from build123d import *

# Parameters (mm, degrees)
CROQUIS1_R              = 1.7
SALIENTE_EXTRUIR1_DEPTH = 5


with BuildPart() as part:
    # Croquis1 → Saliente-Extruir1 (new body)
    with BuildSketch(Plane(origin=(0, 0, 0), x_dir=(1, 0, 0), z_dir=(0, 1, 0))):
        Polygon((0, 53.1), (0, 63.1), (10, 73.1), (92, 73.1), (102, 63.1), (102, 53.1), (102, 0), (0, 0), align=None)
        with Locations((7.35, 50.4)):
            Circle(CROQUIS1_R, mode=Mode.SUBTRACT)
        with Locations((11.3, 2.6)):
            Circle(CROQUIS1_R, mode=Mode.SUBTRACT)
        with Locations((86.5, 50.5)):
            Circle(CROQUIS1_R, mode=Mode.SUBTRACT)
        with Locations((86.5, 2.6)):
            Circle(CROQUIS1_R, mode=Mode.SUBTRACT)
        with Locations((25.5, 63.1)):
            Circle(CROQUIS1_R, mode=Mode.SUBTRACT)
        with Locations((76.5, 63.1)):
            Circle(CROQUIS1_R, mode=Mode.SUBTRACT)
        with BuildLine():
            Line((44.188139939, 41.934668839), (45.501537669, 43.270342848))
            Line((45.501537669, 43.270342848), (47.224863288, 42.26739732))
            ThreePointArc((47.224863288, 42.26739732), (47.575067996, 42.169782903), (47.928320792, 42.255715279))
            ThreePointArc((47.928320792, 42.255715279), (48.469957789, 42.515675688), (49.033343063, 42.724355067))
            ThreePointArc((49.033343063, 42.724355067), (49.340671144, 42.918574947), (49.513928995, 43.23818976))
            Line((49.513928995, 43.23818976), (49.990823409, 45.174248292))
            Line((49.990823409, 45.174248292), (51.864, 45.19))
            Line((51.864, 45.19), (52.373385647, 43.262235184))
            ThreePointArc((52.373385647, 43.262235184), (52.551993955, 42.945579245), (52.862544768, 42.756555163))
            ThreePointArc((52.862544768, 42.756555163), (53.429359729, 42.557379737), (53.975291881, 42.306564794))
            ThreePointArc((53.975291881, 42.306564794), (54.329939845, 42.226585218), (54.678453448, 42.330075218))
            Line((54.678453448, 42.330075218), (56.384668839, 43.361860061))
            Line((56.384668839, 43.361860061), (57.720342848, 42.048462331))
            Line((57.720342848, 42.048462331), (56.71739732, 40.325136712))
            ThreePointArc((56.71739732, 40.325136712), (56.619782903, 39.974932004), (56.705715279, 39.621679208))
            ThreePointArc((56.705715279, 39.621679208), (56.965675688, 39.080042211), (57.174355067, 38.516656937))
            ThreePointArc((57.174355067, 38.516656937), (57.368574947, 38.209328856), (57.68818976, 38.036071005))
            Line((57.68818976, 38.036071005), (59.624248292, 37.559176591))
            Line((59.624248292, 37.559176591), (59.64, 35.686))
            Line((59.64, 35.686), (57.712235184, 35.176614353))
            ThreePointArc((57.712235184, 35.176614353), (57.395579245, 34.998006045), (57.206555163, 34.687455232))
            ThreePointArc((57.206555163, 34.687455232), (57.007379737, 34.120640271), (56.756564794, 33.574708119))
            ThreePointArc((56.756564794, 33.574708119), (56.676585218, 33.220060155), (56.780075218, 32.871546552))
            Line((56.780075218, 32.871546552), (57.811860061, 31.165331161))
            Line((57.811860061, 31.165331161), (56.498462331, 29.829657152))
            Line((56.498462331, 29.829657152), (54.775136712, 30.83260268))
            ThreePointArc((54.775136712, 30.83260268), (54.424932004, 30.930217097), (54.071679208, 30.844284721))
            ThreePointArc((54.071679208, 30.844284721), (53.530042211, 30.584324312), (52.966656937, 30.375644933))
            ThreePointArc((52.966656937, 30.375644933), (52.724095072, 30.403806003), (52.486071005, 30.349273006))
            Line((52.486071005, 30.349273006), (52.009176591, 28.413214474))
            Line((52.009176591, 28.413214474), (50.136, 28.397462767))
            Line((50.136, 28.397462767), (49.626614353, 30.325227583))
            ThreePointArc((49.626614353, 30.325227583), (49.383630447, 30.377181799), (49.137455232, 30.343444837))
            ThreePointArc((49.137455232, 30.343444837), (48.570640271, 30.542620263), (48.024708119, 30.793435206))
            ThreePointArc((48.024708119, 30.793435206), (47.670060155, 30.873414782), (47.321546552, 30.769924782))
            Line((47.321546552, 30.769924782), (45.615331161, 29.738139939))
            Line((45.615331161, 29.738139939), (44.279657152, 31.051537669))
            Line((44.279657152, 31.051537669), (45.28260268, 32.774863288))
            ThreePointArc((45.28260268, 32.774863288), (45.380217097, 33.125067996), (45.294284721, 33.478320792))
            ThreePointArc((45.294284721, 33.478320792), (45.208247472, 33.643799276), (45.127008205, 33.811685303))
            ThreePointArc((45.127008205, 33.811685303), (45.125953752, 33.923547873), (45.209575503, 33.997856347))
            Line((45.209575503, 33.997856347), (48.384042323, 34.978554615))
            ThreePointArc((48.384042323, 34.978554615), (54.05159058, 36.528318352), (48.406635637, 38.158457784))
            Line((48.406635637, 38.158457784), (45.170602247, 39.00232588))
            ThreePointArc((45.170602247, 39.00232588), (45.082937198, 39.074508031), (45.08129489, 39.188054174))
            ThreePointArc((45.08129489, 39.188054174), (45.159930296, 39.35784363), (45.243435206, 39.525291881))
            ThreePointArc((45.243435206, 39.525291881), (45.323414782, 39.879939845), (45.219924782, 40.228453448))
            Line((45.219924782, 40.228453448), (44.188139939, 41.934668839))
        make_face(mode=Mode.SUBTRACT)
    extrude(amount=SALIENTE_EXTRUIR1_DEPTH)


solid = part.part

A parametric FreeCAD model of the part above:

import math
import FreeCAD as App
import Part
import Sketcher
from FreeCAD import Vector

doc = App.newDocument("Part")
body = doc.addObject("PartDesign::Body", "Body")

# Sketch on XZ plane
sketch1 = doc.addObject("Sketcher::SketchObject", "Sketch")
body.addObject(sketch1)
sketch1.AttachmentSupport = (doc.XZ_Plane, [""])
sketch1.MapMode = "FlatFace"
sketch1.addGeometry([
    Part.LineSegment(Vector(0, -63.1, 0), Vector(0, 0, 0)),  # 0
    Part.LineSegment(Vector(0, 0, 0), Vector(102, 0, 0)),  # 1
    Part.LineSegment(Vector(102, 0, 0), Vector(102, -63.1, 0)),  # 2
    Part.LineSegment(Vector(102, -63.1, 0), Vector(92, -73.1, 0)),  # 3
    Part.LineSegment(Vector(92, -73.1, 0), Vector(10, -73.1, 0)),  # 4
    Part.LineSegment(Vector(10, -73.1, 0), Vector(0, -63.1, 0)),  # 5
    Part.Circle(Vector(86.5, -2.6, 0), Vector(0, 0, 1), 1.7),  # 6
    Part.Circle(Vector(11.3, -2.6, 0), Vector(0, 0, 1), 1.7),  # 7
    Part.LineSegment(Vector(44.18814, -41.934669, 0), Vector(45.501538, -43.270343, 0)),  # 8
    Part.LineSegment(Vector(45.501538, -43.270343, 0), Vector(47.224863, -42.267397, 0)),  # 9
    Part.ArcOfCircle(Part.Circle(Vector(47.587023, -42.889684, 0), Vector(0, 0, 1), 0.72), math.radians(61.704141), math.radians(120.198661)),  # 10
    Part.ArcOfCircle(Part.Circle(Vector(51, -36.55, 0), Vector(0, 0, 1), 6.48), math.radians(-118.295859), math.radians(-107.667729)),  # 11
    Part.ArcOfCircle(Part.Circle(Vector(48.814826, -43.410395, 0), Vector(0, 0, 1), 0.72), math.radians(13.837752), math.radians(72.332271)),  # 12
    Part.LineSegment(Vector(49.513929, -43.23819, 0), Vector(49.990823, -45.174248, 0)),  # 13
    Part.LineSegment(Vector(49.990823, -45.174248, 0), Vector(51.864, -45.19, 0)),  # 14
    Part.LineSegment(Vector(51.864, -45.19, 0), Vector(52.373386, -43.262235, 0)),  # 15
    Part.ArcOfCircle(Part.Circle(Vector(53.069494, -43.446172, 0), Vector(0, 0, 1), 0.72), math.radians(106.704141), math.radians(165.198661)),  # 16
    Part.ArcOfCircle(Part.Circle(Vector(51, -36.55, 0), Vector(0, 0, 1), 6.48), math.radians(-73.295859), math.radians(-62.667729)),  # 17
    Part.ArcOfCircle(Part.Circle(Vector(54.30588, -42.946183, 0), Vector(0, 0, 1), 0.72), math.radians(58.837752), math.radians(117.332271)),  # 18
    Part.LineSegment(Vector(54.678453, -42.330075, 0), Vector(56.384669, -43.36186, 0)),  # 19
    Part.LineSegment(Vector(56.384669, -43.36186, 0), Vector(57.720343, -42.048462, 0)),  # 20
    Part.LineSegment(Vector(57.720343, -42.048462, 0), Vector(56.717397, -40.325137, 0)),  # 21
    Part.ArcOfCircle(Part.Circle(Vector(57.339684, -39.962977, 0), Vector(0, 0, 1), 0.72), math.radians(151.704141), math.radians(210.198661)),  # 22
    Part.ArcOfCircle(Part.Circle(Vector(51, -36.55, 0), Vector(0, 0, 1), 6.48), math.radians(-28.295859), math.radians(-17.667729)),  # 23
    Part.ArcOfCircle(Part.Circle(Vector(57.860395, -38.735174, 0), Vector(0, 0, 1), 0.72), math.radians(103.837752), math.radians(162.332271)),  # 24
    Part.LineSegment(Vector(57.68819, -38.036071, 0), Vector(59.624248, -37.559177, 0)),  # 25
    Part.LineSegment(Vector(59.624248, -37.559177, 0), Vector(59.64, -35.686, 0)),  # 26
    Part.LineSegment(Vector(59.64, -35.686, 0), Vector(57.712235, -35.176614, 0)),  # 27
    Part.ArcOfCircle(Part.Circle(Vector(57.896172, -34.480506, 0), Vector(0, 0, 1), 0.72), math.radians(-163.295859), math.radians(-104.801339)),  # 28
    Part.ArcOfCircle(Part.Circle(Vector(51, -36.55, 0), Vector(0, 0, 1), 6.48), math.radians(16.704141), math.radians(27.332271)),  # 29
    Part.ArcOfCircle(Part.Circle(Vector(57.396183, -33.24412, 0), Vector(0, 0, 1), 0.72), math.radians(148.837752), math.radians(207.332271)),  # 30
    Part.LineSegment(Vector(56.780075, -32.871547, 0), Vector(57.81186, -31.165331, 0)),  # 31
    Part.LineSegment(Vector(57.81186, -31.165331, 0), Vector(56.498462, -29.829657, 0)),  # 32
    Part.LineSegment(Vector(56.498462, -29.829657, 0), Vector(54.775137, -30.832603, 0)),  # 33
    Part.ArcOfCircle(Part.Circle(Vector(54.412977, -30.210316, 0), Vector(0, 0, 1), 0.72), math.radians(-118.295859), math.radians(-59.801339)),  # 34
    Part.ArcOfCircle(Part.Circle(Vector(51, -36.55, 0), Vector(0, 0, 1), 6.48), math.radians(61.704141), math.radians(72.332271)),  # 35
    Part.ArcOfCircle(Part.Circle(Vector(52.763545, -29.684888, 0), Vector(0, 0, 1), 0.72), math.radians(-112.6674), math.radians(-73.614457)),  # 36
    Part.LineSegment(Vector(52.486071, -30.349273, 0), Vector(52.009177, -28.413214, 0)),  # 37
    Part.LineSegment(Vector(52.009177, -28.413214, 0), Vector(50.136, -28.397463, 0)),  # 38
    Part.LineSegment(Vector(50.136, -28.397463, 0), Vector(49.626614, -30.325228, 0)),  # 39
    Part.ArcOfCircle(Part.Circle(Vector(49.356835, -29.657681, 0), Vector(0, 0, 1), 0.72), math.radians(-107.739746), math.radians(-67.994609)),  # 40
    Part.ArcOfCircle(Part.Circle(Vector(51, -36.55, 0), Vector(0, 0, 1), 6.48), math.radians(106.704141), math.radians(117.332271)),  # 41
    Part.ArcOfCircle(Part.Circle(Vector(47.69412, -30.153817, 0), Vector(0, 0, 1), 0.72), math.radians(-121.162248), math.radians(-62.667729)),  # 42
    Part.LineSegment(Vector(47.321547, -30.769925, 0), Vector(45.615331, -29.73814, 0)),  # 43
    Part.LineSegment(Vector(45.615331, -29.73814, 0), Vector(44.279657, -31.051538, 0)),  # 44
    Part.LineSegment(Vector(44.279657, -31.051538, 0), Vector(45.282603, -32.774863, 0)),  # 45
    Part.ArcOfCircle(Part.Circle(Vector(44.660316, -33.137023, 0), Vector(0, 0, 1), 0.72), math.radians(-28.295859), math.radians(30.198661)),  # 46
    Part.ArcOfCircle(Part.Circle(Vector(51.000002, -36.550001, 0), Vector(0, 0, 1), 6.480002), math.radians(151.704142), math.radians(155.002455)),  # 47
    Part.ArcOfCircle(Part.Circle(Vector(45.249453, -33.868776, 0), Vector(0, 0, 1), 0.1351), math.radians(155.002455), math.radians(252.832344)),  # 48
    Part.LineSegment(Vector(45.209576, -33.997856, 0), Vector(48.384042, -34.978555, 0)),  # 49
    Part.ArcOfCircle(Part.Circle(Vector(51, -36.55, 0), Vector(0, 0, 1), 3.051668), math.radians(-148.191962), math.radians(149.006125)),  # 50
    Part.LineSegment(Vector(48.406636, -38.158458, 0), Vector(45.170602, -39.002326, 0)),  # 51
    Part.ArcOfCircle(Part.Circle(Vector(45.204693, -39.133054, 0), Vector(0, 0, 1), 0.1351), math.radians(104.61566), math.radians(204.023238)),  # 52
    Part.ArcOfCircle(Part.Circle(Vector(51.000001, -36.549999, 0), Vector(0, 0, 1), 6.480001), math.radians(-155.976762), math.radians(-152.667729)),  # 53
    Part.ArcOfCircle(Part.Circle(Vector(44.603817, -39.85588, 0), Vector(0, 0, 1), 0.72), math.radians(-31.162248), math.radians(27.332271)),  # 54
    Part.LineSegment(Vector(45.219925, -40.228453, 0), Vector(44.18814, -41.934669, 0)),  # 55
    Part.Circle(Vector(86.5, -50.5, 0), Vector(0, 0, 1), 1.7),  # 56
    Part.Circle(Vector(76.5, -63.1, 0), Vector(0, 0, 1), 1.7),  # 57
    Part.Circle(Vector(7.35, -50.4, 0), Vector(0, 0, 1), 1.7),  # 58
    Part.Circle(Vector(25.5, -63.1, 0), Vector(0, 0, 1), 1.7),  # 59
], False)
sketch1.addConstraint([
    Sketcher.Constraint("Coincident", 0, 2, 1, 1),
    Sketcher.Constraint("Coincident", 1, 2, 2, 1),
    Sketcher.Constraint("Coincident", 2, 2, 3, 1),
    Sketcher.Constraint("Coincident", 3, 2, 4, 1),
    Sketcher.Constraint("Coincident", 4, 2, 5, 1),
    Sketcher.Constraint("Coincident", 5, 2, 0, 1),
    Sketcher.Constraint("Coincident", 8, 2, 9, 1),
    Sketcher.Constraint("Tangent", 9, 2, 10, 2),
    Sketcher.Constraint("Tangent", 10, 1, 11, 1),
    Sketcher.Constraint("Tangent", 11, 2, 12, 2),
    Sketcher.Constraint("Tangent", 12, 1, 13, 1),
    Sketcher.Constraint("Coincident", 13, 2, 14, 1),
    Sketcher.Constraint("Coincident", 14, 2, 15, 1),
    Sketcher.Constraint("Tangent", 15, 2, 16, 2),
    Sketcher.Constraint("Tangent", 16, 1, 17, 1),
    Sketcher.Constraint("Tangent", 17, 2, 18, 2),
    Sketcher.Constraint("Tangent", 18, 1, 19, 1),
    Sketcher.Constraint("Coincident", 19, 2, 20, 1),
    Sketcher.Constraint("Coincident", 20, 2, 21, 1),
    Sketcher.Constraint("Tangent", 21, 2, 22, 2),
    Sketcher.Constraint("Tangent", 22, 1, 23, 1),
    Sketcher.Constraint("Tangent", 23, 2, 24, 2),
    Sketcher.Constraint("Tangent", 24, 1, 25, 1),
    Sketcher.Constraint("Coincident", 25, 2, 26, 1),
    Sketcher.Constraint("Coincident", 26, 2, 27, 1),
    Sketcher.Constraint("Tangent", 27, 2, 28, 2),
    Sketcher.Constraint("Tangent", 28, 1, 29, 1),
    Sketcher.Constraint("Tangent", 29, 2, 30, 2),
    Sketcher.Constraint("Tangent", 30, 1, 31, 1),
    Sketcher.Constraint("Coincident", 31, 2, 32, 1),
    Sketcher.Constraint("Coincident", 32, 2, 33, 1),
    Sketcher.Constraint("Tangent", 33, 2, 34, 2),
    Sketcher.Constraint("Tangent", 34, 1, 35, 1),
    Sketcher.Constraint("Coincident", 35, 2, 36, 2),
    Sketcher.Constraint("Coincident", 36, 1, 37, 1),
    Sketcher.Constraint("Coincident", 37, 2, 38, 1),
    Sketcher.Constraint("Coincident", 38, 2, 39, 1),
    Sketcher.Constraint("Coincident", 39, 2, 40, 2),
    Sketcher.Constraint("Coincident", 40, 1, 41, 1),
    Sketcher.Constraint("Tangent", 41, 2, 42, 2),
    Sketcher.Constraint("Tangent", 42, 1, 43, 1),
    Sketcher.Constraint("Coincident", 43, 2, 44, 1),
    Sketcher.Constraint("Coincident", 44, 2, 45, 1),
    Sketcher.Constraint("Tangent", 45, 2, 46, 2),
    Sketcher.Constraint("Tangent", 46, 1, 47, 1),
    Sketcher.Constraint("Tangent", 47, 2, 48, 1),
    Sketcher.Constraint("Tangent", 48, 2, 49, 1),
    Sketcher.Constraint("Coincident", 49, 2, 50, 2),
    Sketcher.Constraint("Coincident", 50, 1, 51, 1),
    Sketcher.Constraint("Tangent", 51, 2, 52, 1),
    Sketcher.Constraint("Tangent", 52, 2, 53, 1),
    Sketcher.Constraint("Tangent", 53, 2, 54, 2),
    Sketcher.Constraint("Tangent", 54, 1, 55, 1),
    Sketcher.Constraint("Coincident", 55, 2, 8, 1),
    Sketcher.Constraint("Vertical", 0),
    Sketcher.Constraint("Horizontal", 1),
    Sketcher.Constraint("Vertical", 2),
    Sketcher.Constraint("Horizontal", 4),
    Sketcher.Constraint("Coincident", 0, 2, -1, 1),
    Sketcher.Constraint("Coincident", 17, 3, 11, 3),
    Sketcher.Constraint("Coincident", 23, 3, 11, 3),
    Sketcher.Constraint("Coincident", 29, 3, 11, 3),
    Sketcher.Constraint("Coincident", 35, 3, 11, 3),
    Sketcher.Constraint("Coincident", 41, 3, 11, 3),
    Sketcher.Constraint("Coincident", 47, 3, 11, 3),
    Sketcher.Constraint("Coincident", 50, 3, 11, 3),
    Sketcher.Constraint("Coincident", 53, 3, 11, 3),
    Sketcher.Constraint("Equal", 6, 7),
    Sketcher.Constraint("Equal", 10, 12),
    Sketcher.Constraint("Equal", 12, 16),
    Sketcher.Constraint("Equal", 11, 17),
    Sketcher.Constraint("Equal", 16, 18),
    Sketcher.Constraint("Equal", 18, 22),
    Sketcher.Constraint("Equal", 17, 23),
    Sketcher.Constraint("Equal", 22, 24),
    Sketcher.Constraint("Equal", 24, 28),
    Sketcher.Constraint("Equal", 23, 29),
    Sketcher.Constraint("Equal", 28, 30),
    Sketcher.Constraint("Equal", 30, 34),
    Sketcher.Constraint("Equal", 29, 35),
    Sketcher.Constraint("Equal", 34, 36),
    Sketcher.Constraint("Equal", 36, 40),
    Sketcher.Constraint("Equal", 35, 41),
    Sketcher.Constraint("Equal", 40, 42),
    Sketcher.Constraint("Equal", 42, 46),
    Sketcher.Constraint("Equal", 41, 47),
    Sketcher.Constraint("Equal", 48, 52),
    Sketcher.Constraint("Equal", 47, 53),
    Sketcher.Constraint("Equal", 46, 54),
    Sketcher.Constraint("Equal", 7, 56),
    Sketcher.Constraint("Equal", 56, 57),
    Sketcher.Constraint("Equal", 57, 58),
    Sketcher.Constraint("Equal", 58, 59),
    Sketcher.Constraint("Perpendicular", 3, 5),
    Sketcher.Constraint("Perpendicular", 8, 20),
    Sketcher.Constraint("Perpendicular", 9, 21),
    Sketcher.Constraint("Perpendicular", 13, 25),
    Sketcher.Constraint("Perpendicular", 14, 26),
    Sketcher.Constraint("Perpendicular", 15, 27),
    Sketcher.Constraint("Perpendicular", 19, 31),
    Sketcher.Constraint("Perpendicular", 20, 32),
    Sketcher.Constraint("Perpendicular", 21, 33),
    Sketcher.Constraint("Perpendicular", 25, 37),
    Sketcher.Constraint("Perpendicular", 26, 38),
    Sketcher.Constraint("Perpendicular", 27, 39),
    Sketcher.Constraint("Perpendicular", 31, 43),
    Sketcher.Constraint("Perpendicular", 32, 44),
    Sketcher.Constraint("Perpendicular", 33, 45),
    Sketcher.Constraint("Perpendicular", 43, 55),
    Sketcher.Constraint("Horizontal", 6, 3, 7, 3),
    Sketcher.Constraint("Horizontal", 57, 3, 59, 3),
    Sketcher.Constraint("Horizontal", 59, 3, 2, 2),
    Sketcher.Constraint("Horizontal", 2, 2, 5, 2),
    Sketcher.Constraint("Vertical", 6, 3, 56, 3),
    Sketcher.Constraint("Equal", 3, 5),
    Sketcher.Constraint("Equal", 9, 13),
    Sketcher.Constraint("Equal", 8, 14),
    Sketcher.Constraint("Equal", 13, 15),
    Sketcher.Constraint("Equal", 15, 19),
    Sketcher.Constraint("Equal", 14, 20),
    Sketcher.Constraint("Equal", 19, 21),
    Sketcher.Constraint("Equal", 21, 25),
    Sketcher.Constraint("Equal", 20, 26),
    Sketcher.Constraint("Equal", 25, 27),
    Sketcher.Constraint("Equal", 27, 31),
    Sketcher.Constraint("Equal", 26, 32),
    Sketcher.Constraint("Equal", 31, 33),
    Sketcher.Constraint("Equal", 33, 37),
    Sketcher.Constraint("Equal", 32, 38),
    Sketcher.Constraint("Equal", 37, 39),
    Sketcher.Constraint("Equal", 39, 43),
    Sketcher.Constraint("Equal", 38, 44),
    Sketcher.Constraint("Equal", 43, 45),
    Sketcher.Constraint("Equal", 45, 55),
    Sketcher.Constraint("Diameter", 6, 3.4),
    Sketcher.Constraint("DistanceX", 1, 1, 1, 2, 102.0),
    Sketcher.Constraint("DistanceX", 4, 2, 4, 1, 82.0),
    Sketcher.Constraint("Radius", 10, 0.72),
    Sketcher.Constraint("Radius", 11, 6.48),
    Sketcher.Constraint("DistanceY", 0, 1, 0, 2, 63.1),
    Sketcher.Constraint("DistanceX", -1, 1, 11, 3, 51.0),
    Sketcher.Constraint("DistanceX", -1, 1, 6, 3, 86.5),
    Sketcher.Constraint("DistanceY", 6, 3, -1, 1, 2.6),
    Sketcher.Constraint("DistanceX", -1, 1, 7, 3, 11.3),
    Sketcher.Constraint("DistanceY", 56, 3, -1, 1, 50.5),
    Sketcher.Constraint("DistanceX", -1, 1, 57, 3, 76.5),
    Sketcher.Constraint("DistanceY", 58, 3, -1, 1, 50.4),
    Sketcher.Constraint("DistanceX", -1, 1, 59, 3, 25.5),
    Sketcher.Constraint("Radius", 48, 0.1351),
    Sketcher.Constraint("DistanceY", 11, 3, -1, 1, 36.55),
    Sketcher.Constraint("DistanceX", -1, 1, 58, 3, 7.35),
    Sketcher.Constraint("DistanceY", 14, 2, -1, 1, 45.19),
    Sketcher.Constraint("DistanceX", -1, 1, 14, 2, 51.864),
    Sketcher.Constraint("DistanceX", -1, 1, 38, 2, 50.136),
    Sketcher.Constraint("Radius", 50, 3.051668),
    Sketcher.Constraint("Distance", 49, 3.3225),
    Sketcher.Constraint("Distance", 9, 1.993929),
    Sketcher.Constraint("DistanceX", -1, 1, 18, 3, 54.30588),
    Sketcher.Constraint("DistanceY", 40, 3, -1, 1, 29.657681),
    Sketcher.Constraint("DistanceX", -1, 1, 10, 1, 47.928321),
    Sketcher.Constraint("DistanceX", -1, 1, 12, 1, 49.513929),
    Sketcher.Constraint("DistanceY", 12, 1, -1, 1, 43.23819),
    Sketcher.Constraint("DistanceX", -1, 1, 19, 2, 56.384669),
    Sketcher.Constraint("DistanceX", -1, 1, 47, 2, 45.127008),
    Sketcher.Constraint("Distance", 51, 3.344253),
    Sketcher.Constraint("DistanceX", -1, 1, 36, 3, 52.763545),
    Sketcher.Constraint("DistanceY", 36, 3, -1, 1, 29.684888),
    Sketcher.Constraint("DistanceX", -1, 1, 52, 3, 45.204693),
])
pad1 = doc.addObject("PartDesign::Pad", "Pad")
body.addObject(pad1)
pad1.Profile = sketch1
pad1.Length = 5
pad1.Reversed = True

doc.recompute()
